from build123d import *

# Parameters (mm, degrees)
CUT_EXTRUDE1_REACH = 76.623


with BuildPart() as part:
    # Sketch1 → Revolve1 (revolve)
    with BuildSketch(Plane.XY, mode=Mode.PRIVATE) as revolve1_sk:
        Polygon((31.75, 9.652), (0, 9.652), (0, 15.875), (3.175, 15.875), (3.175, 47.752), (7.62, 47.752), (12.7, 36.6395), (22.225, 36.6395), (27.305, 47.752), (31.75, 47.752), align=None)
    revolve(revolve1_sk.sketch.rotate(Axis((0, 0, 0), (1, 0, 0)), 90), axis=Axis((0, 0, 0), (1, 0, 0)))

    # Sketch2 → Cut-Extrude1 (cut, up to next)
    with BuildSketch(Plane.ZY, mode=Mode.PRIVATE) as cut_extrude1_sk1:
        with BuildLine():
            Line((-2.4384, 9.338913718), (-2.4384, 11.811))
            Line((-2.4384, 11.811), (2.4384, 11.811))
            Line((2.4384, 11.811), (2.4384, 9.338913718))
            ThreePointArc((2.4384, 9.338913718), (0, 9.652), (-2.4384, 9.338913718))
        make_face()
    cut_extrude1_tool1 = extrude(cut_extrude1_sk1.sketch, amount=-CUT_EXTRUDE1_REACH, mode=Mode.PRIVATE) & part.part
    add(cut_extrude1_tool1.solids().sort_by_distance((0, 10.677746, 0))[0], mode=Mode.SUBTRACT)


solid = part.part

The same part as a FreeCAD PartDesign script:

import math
import FreeCAD as App
import Part
import Sketcher

V = App.Vector
Q = App.Units.Quantity

doc = App.newDocument("Part")
body = doc.addObject("PartDesign::Body", "Body")

# Sketch on XY plane
sketch1 = doc.addObject("Sketcher::SketchObject", "Sketch")
body.addObject(sketch1)
sketch1.AttachmentSupport = (doc.XY_Plane, [""])
sketch1.MapMode = "FlatFace"
sketch1.addGeometry(Part.LineSegment(V(0, 9.652, 0), V(31.75, 9.652, 0)), False)
sketch1.addGeometry(Part.LineSegment(V(31.75, 9.652, 0), V(31.75, 47.752, 0)), False)
sketch1.addGeometry(Part.LineSegment(V(31.75, 47.752, 0), V(27.305, 47.752, 0)), False)
sketch1.addGeometry(Part.LineSegment(V(27.305, 47.752, 0), V(22.225, 36.6395, 0)), False)
sketch1.addGeometry(Part.LineSegment(V(22.225, 36.6395, 0), V(12.7, 36.6395, 0)), False)
sketch1.addGeometry(Part.LineSegment(V(12.7, 36.6395, 0), V(7.62, 47.752, 0)), False)
sketch1.addGeometry(Part.LineSegment(V(7.62, 47.752, 0), V(3.175, 47.752, 0)), False)
sketch1.addGeometry(Part.LineSegment(V(3.175, 47.752, 0), V(3.175, 15.875, 0)), False)
sketch1.addGeometry(Part.LineSegment(V(3.175, 15.875, 0), V(0, 15.875, 0)), False)
sketch1.addGeometry(Part.LineSegment(V(0, 15.875, 0), V(0, 9.652, 0)), False)
sketch1.addConstraint(Sketcher.Constraint("Coincident", 0, 2, 1, 1))
sketch1.addConstraint(Sketcher.Constraint("Coincident", 1, 2, 2, 1))
sketch1.addConstraint(Sketcher.Constraint("Coincident", 2, 2, 3, 1))
sketch1.addConstraint(Sketcher.Constraint("Coincident", 3, 2, 4, 1))
sketch1.addConstraint(Sketcher.Constraint("Coincident", 4, 2, 5, 1))
sketch1.addConstraint(Sketcher.Constraint("Coincident", 5, 2, 6, 1))
sketch1.addConstraint(Sketcher.Constraint("Coincident", 6, 2, 7, 1))
sketch1.addConstraint(Sketcher.Constraint("Coincident", 7, 2, 8, 1))
sketch1.addConstraint(Sketcher.Constraint("Coincident", 8, 2, 9, 1))
sketch1.addConstraint(Sketcher.Constraint("Coincident", 9, 2, 0, 1))
sketch1.addConstraint(Sketcher.Constraint("Horizontal", 0))
sketch1.addConstraint(Sketcher.Constraint("Vertical", 1))
sketch1.addConstraint(Sketcher.Constraint("Horizontal", 2))
sketch1.addConstraint(Sketcher.Constraint("Horizontal", 4))
sketch1.addConstraint(Sketcher.Constraint("Horizontal", 6))
sketch1.addConstraint(Sketcher.Constraint("Vertical", 7))
sketch1.addConstraint(Sketcher.Constraint("Horizontal", 8))
sketch1.addConstraint(Sketcher.Constraint("Vertical", 9))
sketch1.addConstraint(Sketcher.Constraint("PointOnObject", 8, 2, -2))
sketch1.addConstraint(Sketcher.Constraint("Horizontal", 2, 2, 5, 2))
sketch1.addConstraint(Sketcher.Constraint("Equal", 2, 6))
sketch1.addConstraint(Sketcher.Constraint("Equal", 3, 5))
sketch1.addConstraint(Sketcher.Constraint("DistanceY", 1, 1, 1, 2, Q("1.5 in")))
sketch1.addConstraint(Sketcher.Constraint("DistanceX", 0, 1, 0, 2, Q("1.25 in")))
sketch1.addConstraint(Sketcher.Constraint("DistanceX", -1, 1, 4, 2, Q("0.5 in")))
sketch1.addConstraint(Sketcher.Constraint("DistanceX", -1, 1, 5, 2, Q("0.3 in")))
sketch1.addConstraint(Sketcher.Constraint("DistanceX", 2, 2, 2, 1, Q("0.175 in")))
sketch1.addConstraint(Sketcher.Constraint("DistanceY", 7, 2, 7, 1, Q("1.255 in")))
sketch1.addConstraint(Sketcher.Constraint("DistanceY", -1, 1, 0, 2, Q("0.38 in")))
sketch1.addConstraint(Sketcher.Constraint("DistanceY", 3, 2, 2, 2, Q("0.4375 in")))
revolution = doc.addObject("PartDesign::Revolution", "Revolution")
body.addObject(revolution)
revolution.Profile = sketch1
revolution.ReferenceAxis = (sketch1, ["H_Axis"])
revolution.Angle = 360

# Sketch on YZ plane
sketch2 = doc.addObject("Sketcher::SketchObject", "Sketch001")
body.addObject(sketch2)
sketch2.AttachmentSupport = (doc.YZ_Plane, [""])
sketch2.MapMode = "FlatFace"
sketch2.addGeometry(Part.LineSegment(V(11.811, -2.4384, 0), V(9.338914, -2.4384, 0)), False)
sketch2.addGeometry(Part.ArcOfCircle(Part.Circle(V(0, 0, 0), V(0, 0, 1), 9.652), math.radians(-14.63329), math.radians(14.63329)), False)
sketch2.addGeometry(Part.LineSegment(V(9.338914, 2.4384, 0), V(11.811, 2.4384, 0)), False)
sketch2.addGeometry(Part.LineSegment(V(11.811, 2.4384, 0), V(11.811, -2.4384, 0)), False)
sketch2.addConstraint(Sketcher.Constraint("Coincident", 0, 2, 1, 1))
sketch2.addConstraint(Sketcher.Constraint("Coincident", 1, 2, 2, 1))
sketch2.addConstraint(Sketcher.Constraint("Coincident", 2, 2, 3, 1))
sketch2.addConstraint(Sketcher.Constraint("Coincident", 3, 2, 0, 1))
sketch2.addConstraint(Sketcher.Constraint("Horizontal", 0))
sketch2.addConstraint(Sketcher.Constraint("Horizontal", 2))
sketch2.addConstraint(Sketcher.Constraint("Vertical", 3))
sketch2.addConstraint(Sketcher.Constraint("Coincident", 1, 3, -1, 1))
sketch2.addConstraint(Sketcher.Constraint("Vertical", 0, 2, 1, 2))
sketch2.addConstraint(Sketcher.Constraint("Radius", 1, Q("0.38 in")))
sketch2.addConstraint(Sketcher.Constraint("DistanceY", 3, 2, 3, 1, Q("0.192 in")))
sketch2.addConstraint(Sketcher.Constraint("DistanceX", -1, 1, 2, 2, Q("0.465 in")))
pocket1 = doc.addObject("PartDesign::Pocket", "Pocket")
body.addObject(pocket1)
pocket1.Profile = sketch2
pocket1.Type = "UpToFirst"
pocket1.Reversed = True

doc.recompute()
